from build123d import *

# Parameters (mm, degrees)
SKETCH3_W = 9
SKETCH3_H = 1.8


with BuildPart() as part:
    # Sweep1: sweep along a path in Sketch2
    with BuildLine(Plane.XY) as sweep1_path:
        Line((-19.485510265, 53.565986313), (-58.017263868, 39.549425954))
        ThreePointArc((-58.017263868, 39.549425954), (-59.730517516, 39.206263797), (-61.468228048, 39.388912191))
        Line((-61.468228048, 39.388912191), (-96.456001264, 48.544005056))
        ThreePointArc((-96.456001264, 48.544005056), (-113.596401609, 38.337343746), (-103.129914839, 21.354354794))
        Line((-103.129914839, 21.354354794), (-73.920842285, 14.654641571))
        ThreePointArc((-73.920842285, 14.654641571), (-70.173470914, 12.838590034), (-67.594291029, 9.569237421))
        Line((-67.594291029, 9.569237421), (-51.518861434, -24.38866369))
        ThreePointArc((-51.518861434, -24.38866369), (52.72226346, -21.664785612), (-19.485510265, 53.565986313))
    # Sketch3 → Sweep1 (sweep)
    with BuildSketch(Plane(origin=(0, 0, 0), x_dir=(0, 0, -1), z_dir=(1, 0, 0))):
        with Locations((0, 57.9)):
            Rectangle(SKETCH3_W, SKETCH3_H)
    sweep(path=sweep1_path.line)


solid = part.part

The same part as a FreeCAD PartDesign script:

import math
import FreeCAD as App
import Part
import Sketcher

V = App.Vector
Q = App.Units.Quantity


def add_polygon(sketch, points):
    """Adds a closed chain of lines whose ends are joined by coincident constraints."""
    first, n = sketch.GeometryCount, len(points)
    for a, b in zip(points, points[1:] + points[:1]):
        sketch.addGeometry(Part.LineSegment(App.Vector(*a, 0), App.Vector(*b, 0)), False)
    for i in range(n):
        sketch.addConstraint(Sketcher.Constraint("Coincident", first + i, 2, first + (i + 1) % n, 1))

doc = App.newDocument("Part")
body = doc.addObject("PartDesign::Body", "Body")

sketch1 = body.newObject("Sketcher::SketchObject", "Sketch")
sketch1.AttachmentSupport = (doc.getObject("YZ_Plane"), [""])
sketch1.MapMode = "FlatFace"
add_polygon(sketch1, [(58.8, 4.5), (57, 4.5), (57, -4.5), (58.8, -4.5)])
sketch1.addConstraint([
    Sketcher.Constraint("Horizontal", 0),
    Sketcher.Constraint("Vertical", 1),
    Sketcher.Constraint("Horizontal", 2),
    Sketcher.Constraint("Vertical", 3),
    Sketcher.Constraint("DistanceY", 1, 2, 1, 1, Q("9 mm")),
    Sketcher.Constraint("DistanceX", 0, 2, 0, 1, Q("1.8 mm")),
    Sketcher.Constraint("DistanceX", -1, 1, 0, 2, Q("57 mm")),
    Sketcher.Constraint("DistanceY", -1, 1, 0, 2, Q("4.5 mm")),
])

sketch2 = body.newObject("Sketcher::SketchObject", "Sketch001")
sketch2.AttachmentSupport = (doc.getObject("XY_Plane"), [""])
sketch2.MapMode = "FlatFace"
sketch2.addGeometry([
    Part.LineSegment(V(-19.5, 53.6, 0), V(-58, 39.5, 0)),
    Part.ArcOfCircle(Part.Circle(V(-60, 45, 0), V(0, 0, 1), 5.8), math.radians(-105), math.radians(-70)),
    Part.LineSegment(V(-61.5, 39.4, 0), V(-96.5, 48.5, 0)),
    Part.ArcOfCircle(Part.Circle(V(-100, 35, 0), V(0, 0, 1), 14), math.radians(75), math.radians(257)),
    Part.LineSegment(V(-103.1, 21.4, 0), V(-73.9, 14.7, 0)),
    Part.ArcOfCircle(Part.Circle(V(-76, 5.6, 0), V(0, 0, 1), 9.3), math.radians(25), math.radians(77)),
    Part.LineSegment(V(-67.6, 9.6, 0), V(-51.5, -24.4, 0)),
    Part.ArcOfCircle(Part.Circle(V(0, 0, 0), V(0, 0, 1), 57), math.radians(-155), math.radians(110)),
], False)
sketch2.addConstraint([
    Sketcher.Constraint("Tangent", 0, 2, 1, 2),
    Sketcher.Constraint("Tangent", 1, 1, 2, 1),
    Sketcher.Constraint("Tangent", 2, 2, 3, 1),
    Sketcher.Constraint("Tangent", 3, 2, 4, 1),
    Sketcher.Constraint("Tangent", 4, 2, 5, 2),
    Sketcher.Constraint("Tangent", 5, 1, 6, 1),
    Sketcher.Constraint("Tangent", 6, 2, 7, 1),
    Sketcher.Constraint("Tangent", 7, 2, 0, 1),
    Sketcher.Constraint("Coincident", 7, 3, -1, 1),
    Sketcher.Constraint("Radius", 3, Q("14 mm")),
    Sketcher.Constraint("Radius", 7, Q("57 mm")),
    Sketcher.Constraint("Radius", 1, Q("5.8 mm")),
    Sketcher.Constraint("Radius", 5, Q("9.3 mm")),
    Sketcher.Constraint("DistanceX", 1, 3, -1, 1, Q("60 mm")),
    Sketcher.Constraint("DistanceY", -1, 1, 1, 3, Q("45 mm")),
    Sketcher.Constraint("DistanceX", 3, 3, -1, 1, Q("100 mm")),
    Sketcher.Constraint("DistanceY", -1, 1, 3, 3, Q("35 mm")),
    Sketcher.Constraint("DistanceX", 5, 3, -1, 1, Q("76 mm")),
    Sketcher.Constraint("DistanceY", 6, 2, 5, 1, Q("33.957901 mm")),
])
doc.recompute()

additivepipe = body.newObject("PartDesign::AdditivePipe", "AdditivePipe")
additivepipe.Profile = sketch1
additivepipe.Spine = (sketch2, ["Edge1", "Edge2", "Edge3", "Edge4", "Edge5", "Edge6", "Edge7", "Edge8"])

doc.recompute()
